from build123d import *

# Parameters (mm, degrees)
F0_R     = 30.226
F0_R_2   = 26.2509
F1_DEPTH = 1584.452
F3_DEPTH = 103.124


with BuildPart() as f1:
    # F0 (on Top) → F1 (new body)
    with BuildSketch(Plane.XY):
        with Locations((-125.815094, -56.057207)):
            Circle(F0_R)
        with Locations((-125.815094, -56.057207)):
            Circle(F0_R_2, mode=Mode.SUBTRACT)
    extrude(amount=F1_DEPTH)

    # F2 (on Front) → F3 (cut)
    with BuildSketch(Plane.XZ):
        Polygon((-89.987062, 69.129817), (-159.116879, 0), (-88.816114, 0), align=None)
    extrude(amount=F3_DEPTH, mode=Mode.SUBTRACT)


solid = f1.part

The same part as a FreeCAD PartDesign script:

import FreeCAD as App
import Part
import Sketcher
from FreeCAD import Vector
Q = App.Units.Quantity

doc = App.newDocument("Part")
body = doc.addObject("PartDesign::Body", "Body")

# Sketch on XY plane
sketch1 = body.newObject("Sketcher::SketchObject", "Sketch")
sketch1.AttachmentSupport = (doc.getObject("XY_Plane"), [""])
sketch1.MapMode = "FlatFace"
sketch1.addGeometry([
    Part.Circle(Vector(-126, -56, 0), Vector(0, 0, 1), 30),
    Part.Circle(Vector(-126, -56, 0), Vector(0, 0, 1), 26),
], False)
sketch1.addConstraint([
    Sketcher.Constraint("Coincident", 1, 3, 0, 3),
    Sketcher.Constraint("Diameter", 0, Q("2.38 in")),
    Sketcher.Constraint("Diameter", 1, Q("2.067 in")),
    Sketcher.Constraint("DistanceX", 0, 3, -1, 1, Q("125.815094 mm")),
    Sketcher.Constraint("DistanceY", 0, 3, -1, 1, Q("56.057207 mm")),
])
pad1 = body.newObject("PartDesign::Pad", "Pad")
pad1.Profile = sketch1
pad1.Length = Q("62.38 in")

# Sketch on XZ plane
sketch2 = body.newObject("Sketcher::SketchObject", "Sketch001")
sketch2.AttachmentSupport = (doc.getObject("XZ_Plane"), [""])
sketch2.MapMode = "FlatFace"
sketch2.addGeometry([
    Part.LineSegment(Vector(-90, 69, 0), Vector(-159, 0, 0)),
    Part.LineSegment(Vector(-159, 0, 0), Vector(-89, 0, 0)),
    Part.LineSegment(Vector(-89, 0, 0), Vector(-90, 69, 0)),
], False)
sketch2.addConstraint([
    Sketcher.Constraint("Coincident", 0, 2, 1, 1),
    Sketcher.Constraint("Coincident", 1, 2, 2, 1),
    Sketcher.Constraint("Coincident", 2, 2, 0, 1),
    Sketcher.Constraint("Horizontal", 1),
    Sketcher.Constraint("PointOnObject", 0, 2, -1),
    Sketcher.Constraint("Angle", 0, Q("-135 deg")),
    Sketcher.Constraint("DistanceX", 1, 1, 1, 2, Q("70.300765 mm")),
    Sketcher.Constraint("DistanceX", 0, 2, -1, 1, Q("159.116879 mm")),
    Sketcher.Constraint("DistanceX", 2, 2, -1, 1, Q("89.987062 mm")),
])
pocket1 = body.newObject("PartDesign::Pocket", "Pocket")
pocket1.Profile = sketch2
pocket1.Length = Q("4.06 in")
pocket1.Reversed = True

doc.recompute()
